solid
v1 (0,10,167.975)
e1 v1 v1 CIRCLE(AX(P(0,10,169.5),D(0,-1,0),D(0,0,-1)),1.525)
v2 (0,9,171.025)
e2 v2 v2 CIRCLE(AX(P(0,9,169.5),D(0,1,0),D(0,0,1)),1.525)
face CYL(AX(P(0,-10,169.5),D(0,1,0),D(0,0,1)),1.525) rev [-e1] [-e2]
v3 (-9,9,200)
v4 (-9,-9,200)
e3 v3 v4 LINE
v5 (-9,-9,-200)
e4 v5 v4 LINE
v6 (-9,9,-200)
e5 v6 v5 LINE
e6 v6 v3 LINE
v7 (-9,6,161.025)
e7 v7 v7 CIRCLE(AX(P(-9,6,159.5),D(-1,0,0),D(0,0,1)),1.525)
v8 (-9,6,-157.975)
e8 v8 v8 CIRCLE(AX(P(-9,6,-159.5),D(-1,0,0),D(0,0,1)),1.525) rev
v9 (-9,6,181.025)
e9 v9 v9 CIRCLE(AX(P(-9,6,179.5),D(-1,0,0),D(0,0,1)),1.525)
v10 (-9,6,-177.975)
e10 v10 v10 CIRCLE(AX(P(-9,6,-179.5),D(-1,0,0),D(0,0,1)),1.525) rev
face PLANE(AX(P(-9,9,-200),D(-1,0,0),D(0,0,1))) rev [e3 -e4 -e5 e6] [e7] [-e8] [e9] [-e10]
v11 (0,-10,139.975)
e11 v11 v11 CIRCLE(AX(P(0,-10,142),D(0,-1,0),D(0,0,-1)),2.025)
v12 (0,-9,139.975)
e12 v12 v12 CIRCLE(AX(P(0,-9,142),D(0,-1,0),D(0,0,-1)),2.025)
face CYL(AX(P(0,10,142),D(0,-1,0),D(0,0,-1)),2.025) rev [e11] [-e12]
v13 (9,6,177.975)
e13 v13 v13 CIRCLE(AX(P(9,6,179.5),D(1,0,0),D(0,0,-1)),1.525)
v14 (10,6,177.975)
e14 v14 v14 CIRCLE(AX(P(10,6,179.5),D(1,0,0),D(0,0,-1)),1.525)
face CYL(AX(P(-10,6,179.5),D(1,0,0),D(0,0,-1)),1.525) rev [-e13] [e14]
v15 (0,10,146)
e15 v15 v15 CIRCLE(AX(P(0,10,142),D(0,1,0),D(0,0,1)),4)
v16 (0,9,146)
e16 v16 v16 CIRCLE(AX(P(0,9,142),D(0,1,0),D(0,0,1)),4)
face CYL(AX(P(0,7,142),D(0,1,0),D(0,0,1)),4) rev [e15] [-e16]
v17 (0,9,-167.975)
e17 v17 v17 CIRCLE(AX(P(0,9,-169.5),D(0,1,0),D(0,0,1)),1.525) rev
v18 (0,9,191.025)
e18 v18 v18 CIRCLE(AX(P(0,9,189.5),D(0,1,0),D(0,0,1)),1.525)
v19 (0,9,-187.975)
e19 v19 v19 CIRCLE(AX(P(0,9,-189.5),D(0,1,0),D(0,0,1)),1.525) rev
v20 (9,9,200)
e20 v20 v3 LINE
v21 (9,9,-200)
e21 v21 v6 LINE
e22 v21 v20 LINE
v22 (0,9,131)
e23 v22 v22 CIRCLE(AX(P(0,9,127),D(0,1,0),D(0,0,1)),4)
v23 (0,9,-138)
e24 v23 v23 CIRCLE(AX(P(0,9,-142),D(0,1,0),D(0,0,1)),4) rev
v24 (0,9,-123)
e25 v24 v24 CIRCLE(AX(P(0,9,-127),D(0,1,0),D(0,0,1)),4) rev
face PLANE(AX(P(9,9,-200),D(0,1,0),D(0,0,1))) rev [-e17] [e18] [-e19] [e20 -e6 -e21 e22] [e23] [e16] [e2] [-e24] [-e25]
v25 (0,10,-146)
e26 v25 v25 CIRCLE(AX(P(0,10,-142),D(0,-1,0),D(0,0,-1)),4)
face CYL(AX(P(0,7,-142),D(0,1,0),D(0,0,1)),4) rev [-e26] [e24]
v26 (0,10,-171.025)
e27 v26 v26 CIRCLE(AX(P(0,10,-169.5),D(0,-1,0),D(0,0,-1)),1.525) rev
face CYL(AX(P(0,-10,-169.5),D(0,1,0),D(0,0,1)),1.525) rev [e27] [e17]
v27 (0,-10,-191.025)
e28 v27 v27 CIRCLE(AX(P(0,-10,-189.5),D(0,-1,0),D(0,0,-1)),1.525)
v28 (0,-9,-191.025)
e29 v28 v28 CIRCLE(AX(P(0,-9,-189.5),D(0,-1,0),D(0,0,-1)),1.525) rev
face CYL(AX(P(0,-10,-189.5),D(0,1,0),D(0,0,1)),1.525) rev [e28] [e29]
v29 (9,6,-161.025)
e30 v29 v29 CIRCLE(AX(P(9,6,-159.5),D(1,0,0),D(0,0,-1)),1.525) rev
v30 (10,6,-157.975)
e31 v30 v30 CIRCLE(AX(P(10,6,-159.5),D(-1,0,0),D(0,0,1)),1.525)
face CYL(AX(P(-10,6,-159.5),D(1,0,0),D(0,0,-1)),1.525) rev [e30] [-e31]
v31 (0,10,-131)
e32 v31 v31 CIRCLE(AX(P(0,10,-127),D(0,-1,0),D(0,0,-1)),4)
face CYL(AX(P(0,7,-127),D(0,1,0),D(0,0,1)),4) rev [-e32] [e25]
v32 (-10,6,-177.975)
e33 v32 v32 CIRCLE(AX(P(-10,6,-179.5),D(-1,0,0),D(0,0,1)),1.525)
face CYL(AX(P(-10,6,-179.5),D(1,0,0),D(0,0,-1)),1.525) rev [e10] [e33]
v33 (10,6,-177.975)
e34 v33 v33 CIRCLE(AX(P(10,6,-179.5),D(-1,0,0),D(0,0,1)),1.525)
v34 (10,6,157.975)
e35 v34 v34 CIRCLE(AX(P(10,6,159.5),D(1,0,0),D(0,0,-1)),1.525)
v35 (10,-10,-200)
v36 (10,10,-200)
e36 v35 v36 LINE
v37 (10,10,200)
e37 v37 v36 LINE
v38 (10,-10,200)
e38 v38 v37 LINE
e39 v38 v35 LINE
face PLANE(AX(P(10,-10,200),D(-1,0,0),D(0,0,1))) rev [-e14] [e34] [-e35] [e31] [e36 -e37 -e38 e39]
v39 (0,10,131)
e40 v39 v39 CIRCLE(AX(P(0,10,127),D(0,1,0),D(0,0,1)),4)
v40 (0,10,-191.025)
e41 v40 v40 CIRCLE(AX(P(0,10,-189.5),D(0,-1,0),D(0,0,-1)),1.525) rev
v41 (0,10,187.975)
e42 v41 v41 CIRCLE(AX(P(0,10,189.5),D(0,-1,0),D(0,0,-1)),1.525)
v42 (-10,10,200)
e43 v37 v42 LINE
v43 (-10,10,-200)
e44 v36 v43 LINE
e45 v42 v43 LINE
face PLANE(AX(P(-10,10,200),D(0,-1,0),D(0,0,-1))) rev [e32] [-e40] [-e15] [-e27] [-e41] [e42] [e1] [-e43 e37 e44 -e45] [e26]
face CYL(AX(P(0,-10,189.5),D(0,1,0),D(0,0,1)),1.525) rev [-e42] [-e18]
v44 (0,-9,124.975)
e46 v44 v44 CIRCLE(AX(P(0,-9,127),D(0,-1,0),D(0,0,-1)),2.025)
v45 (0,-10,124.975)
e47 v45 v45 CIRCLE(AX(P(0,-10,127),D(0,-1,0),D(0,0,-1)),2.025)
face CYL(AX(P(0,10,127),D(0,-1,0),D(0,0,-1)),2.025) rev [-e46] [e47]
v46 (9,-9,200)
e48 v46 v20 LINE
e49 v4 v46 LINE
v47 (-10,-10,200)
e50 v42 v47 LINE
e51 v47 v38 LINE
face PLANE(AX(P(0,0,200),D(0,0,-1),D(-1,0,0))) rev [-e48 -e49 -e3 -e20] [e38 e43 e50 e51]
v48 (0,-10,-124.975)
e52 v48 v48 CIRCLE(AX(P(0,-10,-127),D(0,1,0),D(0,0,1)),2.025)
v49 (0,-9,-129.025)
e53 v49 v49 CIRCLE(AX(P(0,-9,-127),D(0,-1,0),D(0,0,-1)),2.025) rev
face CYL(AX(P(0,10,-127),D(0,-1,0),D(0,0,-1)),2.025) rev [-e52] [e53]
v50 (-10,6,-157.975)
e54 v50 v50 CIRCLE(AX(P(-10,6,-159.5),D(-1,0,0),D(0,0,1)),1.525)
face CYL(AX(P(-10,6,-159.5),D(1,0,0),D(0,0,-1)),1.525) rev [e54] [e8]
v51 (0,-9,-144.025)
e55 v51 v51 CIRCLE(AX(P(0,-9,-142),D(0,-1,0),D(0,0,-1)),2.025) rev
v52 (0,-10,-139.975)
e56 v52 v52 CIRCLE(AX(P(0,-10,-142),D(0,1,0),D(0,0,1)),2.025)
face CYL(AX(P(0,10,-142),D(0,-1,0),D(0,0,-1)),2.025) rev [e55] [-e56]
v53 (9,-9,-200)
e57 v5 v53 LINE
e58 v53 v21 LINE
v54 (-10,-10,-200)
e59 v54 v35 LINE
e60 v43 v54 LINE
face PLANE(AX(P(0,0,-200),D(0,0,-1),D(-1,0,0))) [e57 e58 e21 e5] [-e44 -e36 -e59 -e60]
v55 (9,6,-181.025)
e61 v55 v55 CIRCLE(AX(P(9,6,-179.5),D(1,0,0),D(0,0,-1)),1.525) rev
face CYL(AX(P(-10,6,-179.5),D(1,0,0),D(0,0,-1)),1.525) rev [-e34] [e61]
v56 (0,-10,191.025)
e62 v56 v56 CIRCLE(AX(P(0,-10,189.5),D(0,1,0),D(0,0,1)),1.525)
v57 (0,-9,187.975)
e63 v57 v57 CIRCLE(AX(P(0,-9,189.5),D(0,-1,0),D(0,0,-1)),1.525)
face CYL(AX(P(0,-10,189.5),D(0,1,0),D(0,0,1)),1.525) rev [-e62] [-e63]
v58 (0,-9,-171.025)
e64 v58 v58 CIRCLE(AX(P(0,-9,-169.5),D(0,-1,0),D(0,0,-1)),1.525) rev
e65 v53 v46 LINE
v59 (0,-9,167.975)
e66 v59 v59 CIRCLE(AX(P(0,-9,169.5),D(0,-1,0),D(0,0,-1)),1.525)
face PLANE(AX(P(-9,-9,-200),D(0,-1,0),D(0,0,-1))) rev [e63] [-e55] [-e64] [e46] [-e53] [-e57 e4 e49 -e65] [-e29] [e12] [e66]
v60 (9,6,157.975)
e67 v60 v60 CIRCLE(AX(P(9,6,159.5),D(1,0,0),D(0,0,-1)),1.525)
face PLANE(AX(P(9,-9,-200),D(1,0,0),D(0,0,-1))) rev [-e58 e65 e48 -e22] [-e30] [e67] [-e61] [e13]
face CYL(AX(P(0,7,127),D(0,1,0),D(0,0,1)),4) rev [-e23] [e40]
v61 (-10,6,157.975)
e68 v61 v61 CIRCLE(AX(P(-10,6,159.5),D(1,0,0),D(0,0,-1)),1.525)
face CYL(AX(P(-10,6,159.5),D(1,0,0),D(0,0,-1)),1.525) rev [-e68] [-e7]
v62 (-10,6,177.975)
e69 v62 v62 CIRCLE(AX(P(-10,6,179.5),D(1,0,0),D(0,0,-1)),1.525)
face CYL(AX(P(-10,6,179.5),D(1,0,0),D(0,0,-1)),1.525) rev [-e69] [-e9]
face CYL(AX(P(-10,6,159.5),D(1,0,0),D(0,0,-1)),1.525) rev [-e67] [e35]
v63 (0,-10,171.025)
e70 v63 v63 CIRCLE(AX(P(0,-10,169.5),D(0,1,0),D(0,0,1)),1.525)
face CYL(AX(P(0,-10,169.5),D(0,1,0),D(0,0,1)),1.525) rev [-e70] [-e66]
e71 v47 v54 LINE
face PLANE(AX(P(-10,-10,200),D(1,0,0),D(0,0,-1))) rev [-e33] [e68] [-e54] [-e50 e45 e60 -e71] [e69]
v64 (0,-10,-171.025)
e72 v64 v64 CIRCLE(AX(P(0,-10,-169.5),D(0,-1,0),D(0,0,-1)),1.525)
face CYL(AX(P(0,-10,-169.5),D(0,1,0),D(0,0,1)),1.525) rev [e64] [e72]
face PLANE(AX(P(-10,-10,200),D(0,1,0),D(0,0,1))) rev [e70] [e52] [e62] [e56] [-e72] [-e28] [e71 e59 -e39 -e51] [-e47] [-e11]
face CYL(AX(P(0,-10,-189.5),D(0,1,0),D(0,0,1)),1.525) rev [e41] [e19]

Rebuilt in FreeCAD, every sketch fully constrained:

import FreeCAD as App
import Part
import Sketcher

V = App.Vector

doc = App.newDocument("Part")
params = doc.addObject("Spreadsheet::Sheet", "Params")
for row, (alias, value) in enumerate([
    ("sketch1_width", "20 mm"),
    ("pad1_length", "400 mm"),
    ("sketch2_width", "18 mm"),
    ("sketch3_diameter", "3.05 mm"),
    ("pocket2_length", "22 mm"),
    ("sketch4_diameter", "3.05 mm"),
    ("pocket3_length", "22 mm"),
    ("sketch5_diameter", "4.05 mm"),
    ("pocket4_length", "22 mm"),
    ("sketch6_diameter", "8 mm"),
    ("pocket5_length", "3 mm"),
], start=1):
    params.set(f"A{row}", alias)
    params.set(f"B{row}", "=" + value)
    params.setAlias(f"B{row}", alias)

body = doc.addObject("PartDesign::Body", "Body")

# Sketch on XY plane
sketch1 = body.newObject("Sketcher::SketchObject", "Sketch")
sketch1.AttachmentSupport = (doc.getObject("XY_Plane"), [""])
sketch1.MapMode = "FlatFace"
sketch1.addGeometry([
    Part.LineSegment(V(-10, 10, 0), V(-10, -10, 0)),
    Part.LineSegment(V(-10, -10, 0), V(10, -10, 0)),
    Part.LineSegment(V(10, -10, 0), V(10, 10, 0)),
    Part.LineSegment(V(10, 10, 0), V(-10, 10, 0)),
], False)
sketch1.addConstraint([
    Sketcher.Constraint("Coincident", 0, 2, 1, 1),
    Sketcher.Constraint("Coincident", 1, 2, 2, 1),
    Sketcher.Constraint("Coincident", 2, 2, 3, 1),
    Sketcher.Constraint("Coincident", 3, 2, 0, 1),
    Sketcher.Constraint("Vertical", 0),
    Sketcher.Constraint("Horizontal", 1),
    Sketcher.Constraint("Vertical", 2),
    Sketcher.Constraint("Horizontal", 3),
    Sketcher.Constraint("Symmetric", 0, 2, 2, 2, -1, 1),
    Sketcher.Constraint("Equal", 3, 0),
    Sketcher.Constraint("DistanceX", 1, 1, 1, 2, 20.0),
])
sketch1.setExpression("Constraints[10]", "Params.sketch1_width")
pad1 = body.newObject("PartDesign::Pad", "Pad")
pad1.Profile = sketch1
pad1.setExpression("Length", "Params.pad1_length")
pad1.Midplane = True

# Sketch on XY plane
sketch2 = body.newObject("Sketcher::SketchObject", "Sketch001")
sketch2.AttachmentSupport = (doc.getObject("XY_Plane"), [""])
sketch2.MapMode = "FlatFace"
sketch2.addGeometry([
    Part.LineSegment(V(-9, 9, 0), V(-9, -9, 0)),
    Part.LineSegment(V(-9, -9, 0), V(9, -9, 0)),
    Part.LineSegment(V(9, -9, 0), V(9, 9, 0)),
    Part.LineSegment(V(9, 9, 0), V(-9, 9, 0)),
], False)
sketch2.addConstraint([
    Sketcher.Constraint("Coincident", 0, 2, 1, 1),
    Sketcher.Constraint("Coincident", 1, 2, 2, 1),
    Sketcher.Constraint("Coincident", 2, 2, 3, 1),
    Sketcher.Constraint("Coincident", 3, 2, 0, 1),
    Sketcher.Constraint("Vertical", 0),
    Sketcher.Constraint("Horizontal", 1),
    Sketcher.Constraint("Vertical", 2),
    Sketcher.Constraint("Horizontal", 3),
    Sketcher.Constraint("Symmetric", 0, 2, 2, 2, -1, 1),
    Sketcher.Constraint("Equal", 3, 0),
    Sketcher.Constraint("DistanceX", 1, 1, 1, 2, 18.0),
])
sketch2.setExpression("Constraints[10]", "Params.sketch2_width")
pocket1 = body.newObject("PartDesign::Pocket", "Pocket")
pocket1.Profile = sketch2
pocket1.Type = "ThroughAll"
pocket1.Midplane = True

# Sketch on XZ plane
sketch3 = body.newObject("Sketcher::SketchObject", "Sketch002")
sketch3.AttachmentSupport = (doc.getObject("XZ_Plane"), [""])
sketch3.MapMode = "FlatFace"
sketch3.AttachmentOffset = App.Placement(V(0, 0, 11), App.Rotation())
sketch3.addGeometry([
    Part.Circle(V(0, 189.5, 0), V(0, 0, 1), 1.525),
    Part.Circle(V(0, 169.5, 0), V(0, 0, 1), 1.525),
], False)
sketch3.addConstraint([
    Sketcher.Constraint("Equal", 0, 1),
    Sketcher.Constraint("PointOnObject", 0, 3, -2),
    Sketcher.Constraint("PointOnObject", 1, 3, -2),
    Sketcher.Constraint("Diameter", 0, 3.05),
    Sketcher.Constraint("DistanceY", 1, 3, 0, 3, 20.0),
    Sketcher.Constraint("DistanceY", -1, 1, 0, 3, 189.5),
])
sketch3.setExpression("Constraints[3]", "Params.sketch3_diameter")
pocket2 = body.newObject("PartDesign::Pocket", "Pocket001")
pocket2.Profile = sketch3
pocket2.setExpression("Length", "Params.pocket2_length")
doc.recompute()

mirrored = body.newObject("PartDesign::Mirrored", "Mirrored")
mirrored.Originals = [pocket2]
mirrored.MirrorPlane = (doc.getObject("XY_Plane"), [""])
body.Tip = mirrored

# Sketch on YZ plane
sketch4 = body.newObject("Sketcher::SketchObject", "Sketch003")
sketch4.AttachmentSupport = (doc.getObject("YZ_Plane"), [""])
sketch4.MapMode = "FlatFace"
sketch4.AttachmentOffset = App.Placement(V(0, 0, -11), App.Rotation())
sketch4.addGeometry([
    Part.Circle(V(6, 179.5, 0), V(0, 0, 1), 1.525),
    Part.Circle(V(6, 159.5, 0), V(0, 0, 1), 1.525),
], False)
sketch4.addConstraint([
    Sketcher.Constraint("Equal", 0, 1),
    Sketcher.Constraint("Vertical", 0, 3, 1, 3),
    Sketcher.Constraint("Diameter", 0, 3.05),
    Sketcher.Constraint("DistanceX", -1, 1, 0, 3, 6.0),
    Sketcher.Constraint("DistanceY", 1, 3, 0, 3, 20.0),
    Sketcher.Constraint("DistanceY", -1, 1, 0, 3, 179.5),
])
sketch4.setExpression("Constraints[2]", "Params.sketch4_diameter")
pocket3 = body.newObject("PartDesign::Pocket", "Pocket002")
pocket3.Profile = sketch4
pocket3.setExpression("Length", "Params.pocket3_length")
pocket3.Reversed = True

# Sketch on XZ plane
sketch5 = body.newObject("Sketcher::SketchObject", "Sketch004")
sketch5.AttachmentSupport = (doc.getObject("XZ_Plane"), [""])
sketch5.MapMode = "FlatFace"
sketch5.AttachmentOffset = App.Placement(V(0, 0, -11), App.Rotation())
sketch5.addGeometry([
    Part.Circle(V(0, 142, 0), V(0, 0, 1), 2.025),
    Part.Circle(V(0, 127, 0), V(0, 0, 1), 2.025),
], False)
sketch5.addConstraint([
    Sketcher.Constraint("Equal", 0, 1),
    Sketcher.Constraint("PointOnObject", 0, 3, -2),
    Sketcher.Constraint("PointOnObject", 1, 3, -2),
    Sketcher.Constraint("Diameter", 0, 4.05),
    Sketcher.Constraint("DistanceY", -1, 1, 0, 3, 142.0),
    Sketcher.Constraint("DistanceY", -1, 1, 1, 3, 127.0),
])
sketch5.setExpression("Constraints[3]", "Params.sketch5_diameter")
pocket4 = body.newObject("PartDesign::Pocket", "Pocket003")
pocket4.Profile = sketch5
pocket4.setExpression("Length", "Params.pocket4_length")
pocket4.Reversed = True

# Sketch on XZ plane
sketch6 = body.newObject("Sketcher::SketchObject", "Sketch005")
sketch6.AttachmentSupport = (doc.getObject("XZ_Plane"), [""])
sketch6.MapMode = "FlatFace"
sketch6.AttachmentOffset = App.Placement(V(0, 0, -10), App.Rotation())
sketch6.addGeometry([
    Part.Circle(V(0, 127, 0), V(0, 0, 1), 4),
    Part.Circle(V(0, 142, 0), V(0, 0, 1), 4),
], False)
sketch6.addConstraint([
    Sketcher.Constraint("Equal", 0, 1),
    Sketcher.Constraint("PointOnObject", 0, 3, -2),
    Sketcher.Constraint("PointOnObject", 1, 3, -2),
    Sketcher.Constraint("Diameter", 0, 8.0),
    Sketcher.Constraint("DistanceY", -1, 1, 0, 3, 127.0),
    Sketcher.Constraint("DistanceY", -1, 1, 1, 3, 142.0),
])
sketch6.setExpression("Constraints[3]", "Params.sketch6_diameter")
pocket5 = body.newObject("PartDesign::Pocket", "Pocket004")
pocket5.Profile = sketch6
pocket5.setExpression("Length", "Params.pocket5_length")
pocket5.Reversed = True
doc.recompute()

mirrored2 = body.newObject("PartDesign::Mirrored", "Mirrored001")
mirrored2.Originals = [pocket4, pocket5]
mirrored2.MirrorPlane = (doc.getObject("XY_Plane"), [""])
body.Tip = mirrored2
doc.recompute()

mirrored3 = body.newObject("PartDesign::Mirrored", "Mirrored002")
mirrored3.Originals = [pocket3]
mirrored3.MirrorPlane = (doc.getObject("XY_Plane"), [""])
body.Tip = mirrored3

doc.recompute()
